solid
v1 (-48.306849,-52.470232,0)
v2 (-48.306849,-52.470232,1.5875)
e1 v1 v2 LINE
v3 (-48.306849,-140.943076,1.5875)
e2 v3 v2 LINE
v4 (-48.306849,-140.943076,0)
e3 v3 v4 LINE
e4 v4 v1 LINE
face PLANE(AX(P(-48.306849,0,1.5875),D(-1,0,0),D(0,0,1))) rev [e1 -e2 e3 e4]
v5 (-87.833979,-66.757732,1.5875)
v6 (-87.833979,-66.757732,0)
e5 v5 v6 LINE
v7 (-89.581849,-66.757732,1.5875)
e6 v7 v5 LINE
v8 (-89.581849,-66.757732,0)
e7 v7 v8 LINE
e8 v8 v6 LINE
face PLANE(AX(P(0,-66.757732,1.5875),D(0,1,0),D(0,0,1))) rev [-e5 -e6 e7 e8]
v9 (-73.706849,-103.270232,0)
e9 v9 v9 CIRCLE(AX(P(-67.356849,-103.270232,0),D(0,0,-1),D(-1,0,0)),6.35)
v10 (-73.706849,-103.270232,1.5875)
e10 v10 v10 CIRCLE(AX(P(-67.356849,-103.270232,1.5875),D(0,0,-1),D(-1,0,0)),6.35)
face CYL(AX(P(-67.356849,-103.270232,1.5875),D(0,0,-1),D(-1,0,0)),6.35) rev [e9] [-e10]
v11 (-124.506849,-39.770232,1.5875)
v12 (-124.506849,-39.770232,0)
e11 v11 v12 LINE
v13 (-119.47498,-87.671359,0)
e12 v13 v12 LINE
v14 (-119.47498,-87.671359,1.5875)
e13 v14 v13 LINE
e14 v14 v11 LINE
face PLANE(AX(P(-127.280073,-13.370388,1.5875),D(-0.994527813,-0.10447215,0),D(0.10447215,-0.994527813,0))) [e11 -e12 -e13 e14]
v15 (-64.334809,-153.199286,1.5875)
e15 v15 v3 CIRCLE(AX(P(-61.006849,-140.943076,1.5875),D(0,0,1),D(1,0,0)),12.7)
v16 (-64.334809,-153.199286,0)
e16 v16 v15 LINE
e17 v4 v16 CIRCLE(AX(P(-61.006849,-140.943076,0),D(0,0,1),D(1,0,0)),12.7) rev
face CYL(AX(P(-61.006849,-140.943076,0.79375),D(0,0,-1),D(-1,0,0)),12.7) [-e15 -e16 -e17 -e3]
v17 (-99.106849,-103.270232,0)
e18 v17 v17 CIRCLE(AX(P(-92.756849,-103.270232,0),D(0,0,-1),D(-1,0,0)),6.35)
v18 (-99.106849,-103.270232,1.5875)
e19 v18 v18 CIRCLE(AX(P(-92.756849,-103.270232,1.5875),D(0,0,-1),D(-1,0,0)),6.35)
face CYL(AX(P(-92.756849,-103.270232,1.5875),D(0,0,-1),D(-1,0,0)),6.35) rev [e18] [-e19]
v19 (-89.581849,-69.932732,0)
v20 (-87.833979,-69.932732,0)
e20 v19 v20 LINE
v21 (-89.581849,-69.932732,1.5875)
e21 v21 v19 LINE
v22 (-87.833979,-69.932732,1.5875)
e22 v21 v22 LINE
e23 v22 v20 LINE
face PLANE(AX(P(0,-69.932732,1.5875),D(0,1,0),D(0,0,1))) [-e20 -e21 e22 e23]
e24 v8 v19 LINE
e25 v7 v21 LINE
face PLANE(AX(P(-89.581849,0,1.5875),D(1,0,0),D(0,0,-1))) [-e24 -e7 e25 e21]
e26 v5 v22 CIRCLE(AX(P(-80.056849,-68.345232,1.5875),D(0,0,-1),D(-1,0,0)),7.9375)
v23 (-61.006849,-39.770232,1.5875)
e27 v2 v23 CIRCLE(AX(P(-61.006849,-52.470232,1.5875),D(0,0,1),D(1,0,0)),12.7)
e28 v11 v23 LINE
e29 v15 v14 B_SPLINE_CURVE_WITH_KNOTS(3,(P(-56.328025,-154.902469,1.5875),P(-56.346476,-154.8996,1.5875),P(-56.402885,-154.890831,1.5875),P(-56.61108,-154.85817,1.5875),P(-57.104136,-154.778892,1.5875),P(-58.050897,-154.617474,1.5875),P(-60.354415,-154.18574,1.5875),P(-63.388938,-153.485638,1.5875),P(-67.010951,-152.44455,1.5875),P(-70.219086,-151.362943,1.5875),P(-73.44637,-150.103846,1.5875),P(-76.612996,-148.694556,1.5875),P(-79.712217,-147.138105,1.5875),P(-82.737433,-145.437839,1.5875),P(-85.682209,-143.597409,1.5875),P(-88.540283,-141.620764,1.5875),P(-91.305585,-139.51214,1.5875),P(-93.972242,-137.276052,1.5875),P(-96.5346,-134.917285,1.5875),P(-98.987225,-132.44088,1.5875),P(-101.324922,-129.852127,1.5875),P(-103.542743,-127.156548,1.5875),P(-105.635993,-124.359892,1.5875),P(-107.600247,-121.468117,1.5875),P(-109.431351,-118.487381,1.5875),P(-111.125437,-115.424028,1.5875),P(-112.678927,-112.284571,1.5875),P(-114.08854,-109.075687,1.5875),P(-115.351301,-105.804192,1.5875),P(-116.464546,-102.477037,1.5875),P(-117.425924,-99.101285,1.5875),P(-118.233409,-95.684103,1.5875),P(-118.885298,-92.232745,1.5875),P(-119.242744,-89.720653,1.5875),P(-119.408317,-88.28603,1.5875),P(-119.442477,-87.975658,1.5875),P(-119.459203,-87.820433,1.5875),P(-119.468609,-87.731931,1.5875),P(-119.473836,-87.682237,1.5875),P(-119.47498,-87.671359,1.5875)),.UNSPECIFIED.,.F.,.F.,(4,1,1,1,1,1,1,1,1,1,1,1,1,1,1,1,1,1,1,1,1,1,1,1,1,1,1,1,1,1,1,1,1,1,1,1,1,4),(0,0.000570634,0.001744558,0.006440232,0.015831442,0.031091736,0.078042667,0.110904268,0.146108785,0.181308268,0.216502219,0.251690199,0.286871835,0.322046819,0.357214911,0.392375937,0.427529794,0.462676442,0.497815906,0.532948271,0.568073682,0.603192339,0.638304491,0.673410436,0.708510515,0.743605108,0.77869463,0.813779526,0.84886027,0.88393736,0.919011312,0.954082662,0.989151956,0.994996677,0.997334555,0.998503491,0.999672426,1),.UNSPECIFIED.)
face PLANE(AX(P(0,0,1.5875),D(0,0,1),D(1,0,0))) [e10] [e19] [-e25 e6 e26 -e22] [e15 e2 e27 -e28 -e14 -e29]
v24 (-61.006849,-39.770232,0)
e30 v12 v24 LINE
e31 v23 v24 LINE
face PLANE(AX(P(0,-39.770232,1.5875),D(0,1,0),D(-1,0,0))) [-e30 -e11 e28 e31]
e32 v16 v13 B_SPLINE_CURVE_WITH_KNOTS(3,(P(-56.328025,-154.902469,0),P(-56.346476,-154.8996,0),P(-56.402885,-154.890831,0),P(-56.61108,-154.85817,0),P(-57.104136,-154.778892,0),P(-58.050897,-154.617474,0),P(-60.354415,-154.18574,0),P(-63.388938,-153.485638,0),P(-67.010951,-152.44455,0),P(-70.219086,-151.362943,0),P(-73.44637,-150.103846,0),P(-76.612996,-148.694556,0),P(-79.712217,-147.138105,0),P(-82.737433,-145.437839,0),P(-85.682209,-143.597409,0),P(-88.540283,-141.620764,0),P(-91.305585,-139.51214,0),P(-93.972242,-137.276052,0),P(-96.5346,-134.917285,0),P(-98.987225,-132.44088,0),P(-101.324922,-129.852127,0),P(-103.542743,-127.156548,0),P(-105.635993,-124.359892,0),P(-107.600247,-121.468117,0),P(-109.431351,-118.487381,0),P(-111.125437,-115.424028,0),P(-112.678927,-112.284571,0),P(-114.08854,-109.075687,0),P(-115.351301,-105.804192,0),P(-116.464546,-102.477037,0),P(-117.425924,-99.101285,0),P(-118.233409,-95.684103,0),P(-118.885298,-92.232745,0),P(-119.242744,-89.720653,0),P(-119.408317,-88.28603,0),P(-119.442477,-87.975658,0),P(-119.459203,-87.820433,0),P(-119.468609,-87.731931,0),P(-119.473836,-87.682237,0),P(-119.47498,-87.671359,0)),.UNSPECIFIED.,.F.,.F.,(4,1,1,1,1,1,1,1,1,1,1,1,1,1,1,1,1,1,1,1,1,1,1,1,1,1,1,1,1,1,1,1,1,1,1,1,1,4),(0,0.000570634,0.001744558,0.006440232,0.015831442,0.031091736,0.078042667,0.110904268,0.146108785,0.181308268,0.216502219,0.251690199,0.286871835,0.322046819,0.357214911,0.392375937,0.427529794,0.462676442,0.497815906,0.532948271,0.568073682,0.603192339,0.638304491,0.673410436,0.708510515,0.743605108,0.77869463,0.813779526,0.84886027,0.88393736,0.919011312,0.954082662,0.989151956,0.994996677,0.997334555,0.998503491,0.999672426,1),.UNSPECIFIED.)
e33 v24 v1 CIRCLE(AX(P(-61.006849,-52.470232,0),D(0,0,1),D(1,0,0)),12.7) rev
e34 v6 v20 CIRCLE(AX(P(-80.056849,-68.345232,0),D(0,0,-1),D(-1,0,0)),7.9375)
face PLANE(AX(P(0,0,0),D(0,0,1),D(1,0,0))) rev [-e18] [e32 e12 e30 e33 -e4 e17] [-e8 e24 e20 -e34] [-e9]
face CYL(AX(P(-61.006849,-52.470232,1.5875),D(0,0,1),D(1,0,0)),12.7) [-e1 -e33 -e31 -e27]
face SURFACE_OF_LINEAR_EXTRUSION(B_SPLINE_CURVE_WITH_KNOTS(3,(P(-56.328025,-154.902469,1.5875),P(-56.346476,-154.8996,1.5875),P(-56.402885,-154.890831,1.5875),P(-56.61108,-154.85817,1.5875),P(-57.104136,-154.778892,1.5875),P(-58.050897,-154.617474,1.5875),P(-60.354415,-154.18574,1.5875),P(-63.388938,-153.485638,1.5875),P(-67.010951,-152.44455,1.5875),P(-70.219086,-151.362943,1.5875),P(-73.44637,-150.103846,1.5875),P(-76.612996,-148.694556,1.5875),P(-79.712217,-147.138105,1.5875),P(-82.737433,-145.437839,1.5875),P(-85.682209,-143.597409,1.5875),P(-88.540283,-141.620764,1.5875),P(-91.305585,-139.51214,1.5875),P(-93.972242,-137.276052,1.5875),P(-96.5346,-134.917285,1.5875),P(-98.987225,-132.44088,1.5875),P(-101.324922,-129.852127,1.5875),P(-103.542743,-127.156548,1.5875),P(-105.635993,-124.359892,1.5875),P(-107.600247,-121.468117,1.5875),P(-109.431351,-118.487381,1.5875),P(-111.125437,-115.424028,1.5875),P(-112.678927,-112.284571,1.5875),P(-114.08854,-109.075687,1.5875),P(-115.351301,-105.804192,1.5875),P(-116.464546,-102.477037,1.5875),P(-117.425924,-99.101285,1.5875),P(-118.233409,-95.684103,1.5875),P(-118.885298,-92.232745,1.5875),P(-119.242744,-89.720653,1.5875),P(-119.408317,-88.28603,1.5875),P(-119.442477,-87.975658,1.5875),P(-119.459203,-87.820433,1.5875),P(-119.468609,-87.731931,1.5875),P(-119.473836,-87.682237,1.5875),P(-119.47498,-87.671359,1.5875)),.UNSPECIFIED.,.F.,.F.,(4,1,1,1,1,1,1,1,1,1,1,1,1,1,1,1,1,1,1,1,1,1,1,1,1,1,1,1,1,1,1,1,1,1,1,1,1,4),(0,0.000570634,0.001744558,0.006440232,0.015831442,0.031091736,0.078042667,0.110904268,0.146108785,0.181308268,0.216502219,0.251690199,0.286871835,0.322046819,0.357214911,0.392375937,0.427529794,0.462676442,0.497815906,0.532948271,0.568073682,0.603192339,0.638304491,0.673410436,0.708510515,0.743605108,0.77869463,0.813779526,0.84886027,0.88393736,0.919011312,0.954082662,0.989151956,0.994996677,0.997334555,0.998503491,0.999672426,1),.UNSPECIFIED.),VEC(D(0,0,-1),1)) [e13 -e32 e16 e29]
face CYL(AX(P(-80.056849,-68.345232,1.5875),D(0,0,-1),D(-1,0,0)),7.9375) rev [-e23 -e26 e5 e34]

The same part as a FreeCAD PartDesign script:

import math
import FreeCAD as App
import Part
import Sketcher

V = App.Vector
Q = App.Units.Quantity


def edges_at(feature, points):
    """Names of the edges that pass closest to the given points."""
    edges = feature.Shape.Edges
    near = lambda p: min(range(len(edges)), key=lambda i: edges[i].distToShape(Part.Vertex(*p))[0])
    return sorted({f"Edge{near(p) + 1}" for p in points})

doc = App.newDocument("Part")
body = doc.addObject("PartDesign::Body", "Body")

sketch1 = doc.addObject("Sketcher::SketchObject", "Sketch")
body.addObject(sketch1)
sketch1.AttachmentSupport = (doc.XY_Plane, [""])
sketch1.MapMode = "FlatFace"
sketch1.addGeometry([
    Part.LineSegment(V(-124.506849, -39.770232, 0), V(-119.47498, -87.671359, 0)),
    Part.BSplineCurve([V(-56.328025, -154.902469, 0), V(-56.346476, -154.8996, 0), V(-56.402885, -154.890831, 0), V(-56.61108, -154.85817, 0), V(-57.104136, -154.778892, 0), V(-58.050897, -154.617474, 0), V(-60.354415, -154.18574, 0), V(-63.388938, -153.485638, 0), V(-67.010951, -152.44455, 0), V(-70.219086, -151.362943, 0), V(-73.44637, -150.103846, 0), V(-76.612996, -148.694556, 0), V(-79.712217, -147.138105, 0), V(-82.737433, -145.437839, 0), V(-85.682209, -143.597409, 0), V(-88.540283, -141.620764, 0), V(-91.305585, -139.51214, 0), V(-93.972242, -137.276052, 0), V(-96.5346, -134.917285, 0), V(-98.987225, -132.44088, 0), V(-101.324922, -129.852127, 0), V(-103.542743, -127.156548, 0), V(-105.635993, -124.359892, 0), V(-107.600247, -121.468117, 0), V(-109.431351, -118.487381, 0), V(-111.125437, -115.424028, 0), V(-112.678927, -112.284571, 0), V(-114.08854, -109.075687, 0), V(-115.351301, -105.804192, 0), V(-116.464546, -102.477037, 0), V(-117.425924, -99.101285, 0), V(-118.233409, -95.684103, 0), V(-118.885298, -92.232745, 0), V(-119.242744, -89.720653, 0), V(-119.408317, -88.28603, 0), V(-119.442477, -87.975658, 0), V(-119.459203, -87.820433, 0), V(-119.468609, -87.731931, 0), V(-119.473836, -87.682237, 0), V(-119.47498, -87.671359, 0)], [4, 1, 1, 1, 1, 1, 1, 1, 1, 1, 1, 1, 1, 1, 1, 1, 1, 1, 1, 1, 1, 1, 1, 1, 1, 1, 1, 1, 1, 1, 1, 1, 1, 1, 1, 1, 1, 4], [0, 0.000570634, 0.001744558, 0.006440232, 0.015831442, 0.031091736, 0.078042667, 0.110904268, 0.146108785, 0.181308268, 0.216502219, 0.251690199, 0.286871835, 0.322046819, 0.357214911, 0.392375937, 0.427529794, 0.462676442, 0.497815906, 0.532948271, 0.568073682, 0.603192339, 0.638304491, 0.673410436, 0.708510515, 0.743605108, 0.77869463, 0.813779526, 0.84886027, 0.88393736, 0.919011312, 0.954082662, 0.989151956, 0.994996677, 0.997334555, 0.998503491, 0.999672426, 1], False, 3, [1, 1, 1, 1, 1, 1, 1, 1, 1, 1, 1, 1, 1, 1, 1, 1, 1, 1, 1, 1, 1, 1, 1, 1, 1, 1, 1, 1, 1, 1, 1, 1, 1, 1, 1, 1, 1, 1, 1, 1], False),
    Part.LineSegment(V(-56.328025, -154.902469, 0), V(-48.306849, -156.147612, 0)),
    Part.LineSegment(V(-48.306849, -156.147612, 0), V(-48.306849, -39.770232, 0)),
    Part.LineSegment(V(-48.306849, -39.770232, 0), V(-124.506849, -39.770232, 0)),
], False)
sketch1.addConstraint([
    Sketcher.Constraint("Block", 1),
    Sketcher.Constraint("Coincident", 0, 2, 1, 2),
    Sketcher.Constraint("Coincident", 1, 1, 2, 1),
    Sketcher.Constraint("Coincident", 2, 2, 3, 1),
    Sketcher.Constraint("Coincident", 3, 2, 4, 1),
    Sketcher.Constraint("Coincident", 4, 2, 0, 1),
    Sketcher.Constraint("Vertical", 3),
    Sketcher.Constraint("Horizontal", 4),
    Sketcher.Constraint("DistanceX", 4, 2, 4, 1, Q("3 in")),
    Sketcher.Constraint("DistanceY", 3, 1, 3, 2, Q("116.37738 mm")),
    Sketcher.Constraint("DistanceX", 2, 2, -1, 1, Q("48.306849 mm")),
    Sketcher.Constraint("DistanceY", 2, 2, -1, 1, Q("156.147612 mm")),
])
pad1 = doc.addObject("PartDesign::Pad", "Pad")
body.addObject(pad1)
pad1.Profile = sketch1
pad1.Length = Q("0.0625 in")

sketch2 = doc.addObject("Sketcher::SketchObject", "Sketch001")
body.addObject(sketch2)
sketch2.AttachmentSupport = (doc.XY_Plane, [""])
sketch2.MapMode = "FlatFace"
sketch2.addGeometry([
    Part.Circle(V(-67.356849, -103.270232, 0), V(0, 0, 1), 6.35),
    Part.Circle(V(-92.756849, -103.270232, 0), V(0, 0, 1), 6.35),
    Part.ArcOfCircle(Part.Circle(V(-80.056849, -68.345232, 0), V(0, 0, 1), 7.9375), math.radians(-168.463041), math.radians(168.463041)),
    Part.LineSegment(V(-87.833979, -69.932732, 0), V(-89.581849, -69.932732, 0)),
    Part.LineSegment(V(-89.581849, -69.932732, 0), V(-89.581849, -66.757732, 0)),
    Part.LineSegment(V(-89.581849, -66.757732, 0), V(-87.833979, -66.757732, 0)),
], False)
sketch2.addConstraint([
    Sketcher.Constraint("Coincident", 2, 1, 3, 1),
    Sketcher.Constraint("Coincident", 3, 2, 4, 1),
    Sketcher.Constraint("Coincident", 4, 2, 5, 1),
    Sketcher.Constraint("Coincident", 5, 2, 2, 2),
    Sketcher.Constraint("Horizontal", 3),
    Sketcher.Constraint("Vertical", 4),
    Sketcher.Constraint("Horizontal", 5),
    Sketcher.Constraint("Equal", 0, 1),
    Sketcher.Constraint("Horizontal", 0, 3, 1, 3),
    Sketcher.Constraint("Vertical", 2, 1, 5, 2),
    Sketcher.Constraint("Diameter", 0, Q("0.5 in")),
    Sketcher.Constraint("Radius", 2, Q("0.3125 in")),
    Sketcher.Constraint("DistanceX", 1, 3, 0, 3, Q("1 in")),
    Sketcher.Constraint("DistanceX", 1, 3, 2, 3, Q("0.5 in")),
    Sketcher.Constraint("DistanceY", 4, 1, 4, 2, Q("0.125 in")),
    Sketcher.Constraint("DistanceY", 1, 3, 2, 3, Q("1.375 in")),
    Sketcher.Constraint("DistanceX", 3, 2, 2, 3, Q("0.375 in")),
    Sketcher.Constraint("DistanceX", 0, 3, -1, 1, Q("67.356849 mm")),
    Sketcher.Constraint("DistanceY", 0, 3, -1, 1, Q("103.270232 mm")),
])
pocket1 = doc.addObject("PartDesign::Pocket", "Pocket")
body.addObject(pocket1)
pocket1.Profile = sketch2
pocket1.Type = "ThroughAll"
pocket1.Reversed = True
doc.recompute()

fillet = doc.addObject("PartDesign::Fillet", "Fillet")
body.addObject(fillet)
fillet.Base = (pocket1, edges_at(pocket1, [(-48.307, -39.77, 0.794), (-48.307, -156.148, 0.794)]))
fillet.Radius = Q("0.5 in")

doc.recompute()
